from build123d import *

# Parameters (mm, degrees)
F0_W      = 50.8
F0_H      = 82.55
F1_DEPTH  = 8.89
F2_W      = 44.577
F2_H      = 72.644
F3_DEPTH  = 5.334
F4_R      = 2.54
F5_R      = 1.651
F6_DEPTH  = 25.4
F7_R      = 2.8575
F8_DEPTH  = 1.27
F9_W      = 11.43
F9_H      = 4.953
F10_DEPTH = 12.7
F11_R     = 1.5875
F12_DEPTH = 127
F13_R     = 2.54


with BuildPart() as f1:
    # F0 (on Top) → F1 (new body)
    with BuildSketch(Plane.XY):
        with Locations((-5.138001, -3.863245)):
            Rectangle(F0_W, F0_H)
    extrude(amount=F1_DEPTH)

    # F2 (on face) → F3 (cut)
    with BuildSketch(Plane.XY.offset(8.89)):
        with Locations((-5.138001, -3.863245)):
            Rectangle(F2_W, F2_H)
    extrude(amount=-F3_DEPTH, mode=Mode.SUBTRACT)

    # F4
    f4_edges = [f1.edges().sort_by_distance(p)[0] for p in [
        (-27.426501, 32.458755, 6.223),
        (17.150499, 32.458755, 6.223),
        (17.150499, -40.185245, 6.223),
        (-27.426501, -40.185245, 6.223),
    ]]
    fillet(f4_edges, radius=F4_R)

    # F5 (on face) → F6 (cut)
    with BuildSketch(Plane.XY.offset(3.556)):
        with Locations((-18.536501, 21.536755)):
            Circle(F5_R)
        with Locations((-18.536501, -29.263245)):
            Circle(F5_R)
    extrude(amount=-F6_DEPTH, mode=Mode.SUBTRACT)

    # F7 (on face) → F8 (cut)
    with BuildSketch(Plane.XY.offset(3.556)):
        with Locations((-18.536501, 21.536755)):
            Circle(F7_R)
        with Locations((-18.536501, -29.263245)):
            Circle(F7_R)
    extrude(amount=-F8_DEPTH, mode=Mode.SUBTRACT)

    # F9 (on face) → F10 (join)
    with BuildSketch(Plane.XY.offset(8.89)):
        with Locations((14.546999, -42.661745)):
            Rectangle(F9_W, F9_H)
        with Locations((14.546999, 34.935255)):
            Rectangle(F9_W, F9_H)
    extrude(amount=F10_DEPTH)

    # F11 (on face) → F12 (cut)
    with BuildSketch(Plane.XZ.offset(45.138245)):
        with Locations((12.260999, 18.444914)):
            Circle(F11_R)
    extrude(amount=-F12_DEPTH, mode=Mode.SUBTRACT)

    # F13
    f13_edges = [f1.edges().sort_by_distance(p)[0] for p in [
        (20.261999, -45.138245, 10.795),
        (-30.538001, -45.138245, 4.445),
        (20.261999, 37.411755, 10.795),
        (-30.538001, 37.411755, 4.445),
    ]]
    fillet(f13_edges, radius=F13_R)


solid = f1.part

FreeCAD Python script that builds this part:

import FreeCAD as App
import Part
import Sketcher
Q = App.Units.Quantity


def edges_at(feature, points):
    """Names of the edges that pass closest to the given points."""
    edges = feature.Shape.Edges
    near = lambda p: min(range(len(edges)), key=lambda i: edges[i].distToShape(Part.Vertex(*p))[0])
    return sorted({f"Edge{near(p) + 1}" for p in points})

doc = App.newDocument("Part")
body = doc.addObject("PartDesign::Body", "Body")

# Sketch on XY plane
sketch1 = body.newObject("Sketcher::SketchObject", "Sketch")
sketch1.AttachmentSupport = (doc.getObject("XY_Plane"), [""])
sketch1.MapMode = "FlatFace"
sketch1.addGeometry(Part.LineSegment(App.Vector(-31, 37, 0), App.Vector(-31, -45, 0)), False)
sketch1.addGeometry(Part.LineSegment(App.Vector(-31, -45, 0), App.Vector(20, -45, 0)), False)
sketch1.addGeometry(Part.LineSegment(App.Vector(20, -45, 0), App.Vector(20, 37, 0)), False)
sketch1.addGeometry(Part.LineSegment(App.Vector(20, 37, 0), App.Vector(-31, 37, 0)), False)
sketch1.addConstraint(Sketcher.Constraint("Coincident", 0, 2, 1, 1))
sketch1.addConstraint(Sketcher.Constraint("Coincident", 1, 2, 2, 1))
sketch1.addConstraint(Sketcher.Constraint("Coincident", 2, 2, 3, 1))
sketch1.addConstraint(Sketcher.Constraint("Coincident", 3, 2, 0, 1))
sketch1.addConstraint(Sketcher.Constraint("Vertical", 0))
sketch1.addConstraint(Sketcher.Constraint("Horizontal", 1))
sketch1.addConstraint(Sketcher.Constraint("Vertical", 2))
sketch1.addConstraint(Sketcher.Constraint("Horizontal", 3))
sketch1.addConstraint(Sketcher.Constraint("DistanceX", 1, 1, 1, 2, Q("2 in")))
sketch1.addConstraint(Sketcher.Constraint("DistanceY", 0, 2, 0, 1, Q("3.25 in")))
sketch1.addConstraint(Sketcher.Constraint("DistanceX", 0, 2, -1, 1, 30.538001))
sketch1.addConstraint(Sketcher.Constraint("DistanceY", 0, 2, -1, 1, 45.138245))
pad1 = body.newObject("PartDesign::Pad", "Pad")
pad1.Profile = sketch1
pad1.Length = Q("0.35 in")

# Sketch on XY plane
sketch2 = body.newObject("Sketcher::SketchObject", "Sketch001")
sketch2.AttachmentSupport = (doc.getObject("XY_Plane"), [""])
sketch2.MapMode = "FlatFace"
sketch2.AttachmentOffset = App.Placement(App.Vector(0, 0, 0.35 * 25.4), App.Rotation())
sketch2.addGeometry(Part.LineSegment(App.Vector(-27, 32, 0), App.Vector(-27, -40, 0)), False)
sketch2.addGeometry(Part.LineSegment(App.Vector(-27, -40, 0), App.Vector(17, -40, 0)), False)
sketch2.addGeometry(Part.LineSegment(App.Vector(17, -40, 0), App.Vector(17, 32, 0)), False)
sketch2.addGeometry(Part.LineSegment(App.Vector(17, 32, 0), App.Vector(-27, 32, 0)), False)
sketch2.addConstraint(Sketcher.Constraint("Coincident", 0, 2, 1, 1))
sketch2.addConstraint(Sketcher.Constraint("Coincident", 1, 2, 2, 1))
sketch2.addConstraint(Sketcher.Constraint("Coincident", 2, 2, 3, 1))
sketch2.addConstraint(Sketcher.Constraint("Coincident", 3, 2, 0, 1))
sketch2.addConstraint(Sketcher.Constraint("Vertical", 0))
sketch2.addConstraint(Sketcher.Constraint("Horizontal", 1))
sketch2.addConstraint(Sketcher.Constraint("Vertical", 2))
sketch2.addConstraint(Sketcher.Constraint("Horizontal", 3))
sketch2.addConstraint(Sketcher.Constraint("DistanceY", 0, 2, 0, 1, Q("2.86 in")))
sketch2.addConstraint(Sketcher.Constraint("DistanceX", 1, 1, 1, 2, Q("1.755 in")))
sketch2.addConstraint(Sketcher.Constraint("DistanceX", 0, 2, -1, 1, 27.426501))
sketch2.addConstraint(Sketcher.Constraint("DistanceY", 0, 2, -1, 1, 40.185245))
pocket1 = body.newObject("PartDesign::Pocket", "Pocket")
pocket1.Profile = sketch2
pocket1.Length = Q("0.21 in")
doc.recompute()

fillet = body.newObject("PartDesign::Fillet", "Fillet")
fillet.Base = (pocket1, edges_at(pocket1, [
    (-27.427, 32.459, 6.223),
    (17.15, 32.459, 6.223),
    (17.15, -40.185, 6.223),
    (-27.427, -40.185, 6.223),
]))
fillet.Radius = Q("0.1 in")

# Sketch on XY plane
sketch3 = body.newObject("Sketcher::SketchObject", "Sketch002")
sketch3.AttachmentSupport = (doc.getObject("XY_Plane"), [""])
sketch3.MapMode = "FlatFace"
sketch3.AttachmentOffset = App.Placement(App.Vector(0, 0, 0.14 * 25.4), App.Rotation())
sketch3.addGeometry(Part.Circle(App.Vector(-18.5, 21.5, 0), App.Vector(0, 0, 1), 1.7), False)
sketch3.addGeometry(Part.Circle(App.Vector(-18.5, -29.3, 0), App.Vector(0, 0, 1), 1.7), False)
sketch3.addConstraint(Sketcher.Constraint("Equal", 0, 1))
sketch3.addConstraint(Sketcher.Constraint("Vertical", 0, 3, 1, 3))
sketch3.addConstraint(Sketcher.Constraint("Diameter", 0, Q("0.13 in")))
sketch3.addConstraint(Sketcher.Constraint("DistanceY", 1, 3, 0, 3, Q("2 in")))
sketch3.addConstraint(Sketcher.Constraint("DistanceX", 0, 3, -1, 1, 18.536501))
sketch3.addConstraint(Sketcher.Constraint("DistanceY", -1, 1, 0, 3, 21.536755))
pocket2 = body.newObject("PartDesign::Pocket", "Pocket001")
pocket2.Profile = sketch3
pocket2.Length = Q("1 in")

# Sketch on XY plane
sketch4 = body.newObject("Sketcher::SketchObject", "Sketch003")
sketch4.AttachmentSupport = (doc.getObject("XY_Plane"), [""])
sketch4.MapMode = "FlatFace"
sketch4.AttachmentOffset = App.Placement(App.Vector(0, 0, 0.14 * 25.4), App.Rotation())
sketch4.addGeometry(Part.Circle(App.Vector(-18.5, 21.5, 0), App.Vector(0, 0, 1), 2.9), False)
sketch4.addGeometry(Part.Circle(App.Vector(-18.5, -29.3, 0), App.Vector(0, 0, 1), 2.9), False)
sketch4.addConstraint(Sketcher.Constraint("Equal", 0, 1))
sketch4.addConstraint(Sketcher.Constraint("Vertical", 0, 3, 1, 3))
sketch4.addConstraint(Sketcher.Constraint("Diameter", 0, Q("0.225 in")))
sketch4.addConstraint(Sketcher.Constraint("DistanceY", 1, 3, 0, 3, Q("2 in")))
sketch4.addConstraint(Sketcher.Constraint("DistanceX", 0, 3, -1, 1, 18.536501))
sketch4.addConstraint(Sketcher.Constraint("DistanceY", -1, 1, 0, 3, 21.536755))
pocket3 = body.newObject("PartDesign::Pocket", "Pocket002")
pocket3.Profile = sketch4
pocket3.Length = Q("0.05 in")

# Sketch on XY plane
sketch5 = body.newObject("Sketcher::SketchObject", "Sketch004")
sketch5.AttachmentSupport = (doc.getObject("XY_Plane"), [""])
sketch5.MapMode = "FlatFace"
sketch5.AttachmentOffset = App.Placement(App.Vector(0, 0, 0.35 * 25.4), App.Rotation())
sketch5.addGeometry(Part.LineSegment(App.Vector(8.8, -40.2, 0), App.Vector(8.8, -45.1, 0)), False)
sketch5.addGeometry(Part.LineSegment(App.Vector(8.8, -45.1, 0), App.Vector(20.3, -45.1, 0)), False)
sketch5.addGeometry(Part.LineSegment(App.Vector(20.3, -45.1, 0), App.Vector(20.3, -40.2, 0)), False)
sketch5.addGeometry(Part.LineSegment(App.Vector(20.3, -40.2, 0), App.Vector(8.8, -40.2, 0)), False)
sketch5.addGeometry(Part.LineSegment(App.Vector(8.8, 37.4, 0), App.Vector(8.8, 32.5, 0)), False)
sketch5.addGeometry(Part.LineSegment(App.Vector(8.8, 32.5, 0), App.Vector(20.3, 32.5, 0)), False)
sketch5.addGeometry(Part.LineSegment(App.Vector(20.3, 32.5, 0), App.Vector(20.3, 37.4, 0)), False)
sketch5.addGeometry(Part.LineSegment(App.Vector(20.3, 37.4, 0), App.Vector(8.8, 37.4, 0)), False)
sketch5.addConstraint(Sketcher.Constraint("Coincident", 0, 2, 1, 1))
sketch5.addConstraint(Sketcher.Constraint("Coincident", 1, 2, 2, 1))
sketch5.addConstraint(Sketcher.Constraint("Coincident", 2, 2, 3, 1))
sketch5.addConstraint(Sketcher.Constraint("Coincident", 3, 2, 0, 1))
sketch5.addConstraint(Sketcher.Constraint("Coincident", 4, 2, 5, 1))
sketch5.addConstraint(Sketcher.Constraint("Coincident", 5, 2, 6, 1))
sketch5.addConstraint(Sketcher.Constraint("Coincident", 6, 2, 7, 1))
sketch5.addConstraint(Sketcher.Constraint("Coincident", 7, 2, 4, 1))
sketch5.addConstraint(Sketcher.Constraint("Vertical", 0))
sketch5.addConstraint(Sketcher.Constraint("Horizontal", 1))
sketch5.addConstraint(Sketcher.Constraint("Vertical", 2))
sketch5.addConstraint(Sketcher.Constraint("Horizontal", 3))
sketch5.addConstraint(Sketcher.Constraint("Vertical", 4))
sketch5.addConstraint(Sketcher.Constraint("Horizontal", 5))
sketch5.addConstraint(Sketcher.Constraint("Vertical", 6))
sketch5.addConstraint(Sketcher.Constraint("Horizontal", 7))
sketch5.addConstraint(Sketcher.Constraint("Vertical", 3, 2, 4, 2))
sketch5.addConstraint(Sketcher.Constraint("Vertical", 2, 2, 5, 2))
sketch5.addConstraint(Sketcher.Constraint("Equal", 2, 4))
sketch5.addConstraint(Sketcher.Constraint("DistanceX", 1, 1, 1, 2, Q("0.45 in")))
sketch5.addConstraint(Sketcher.Constraint("DistanceY", 0, 2, 0, 1, Q("0.195 in")))
sketch5.addConstraint(Sketcher.Constraint("DistanceY", 3, 2, 4, 2, Q("2.86 in")))
sketch5.addConstraint(Sketcher.Constraint("DistanceX", -1, 1, 0, 2, 8.831999))
sketch5.addConstraint(Sketcher.Constraint("DistanceY", 0, 2, -1, 1, 45.138245))
pad2 = body.newObject("PartDesign::Pad", "Pad001")
pad2.Profile = sketch5
pad2.Length = Q("0.5 in")

# Sketch on XZ plane
sketch6 = body.newObject("Sketcher::SketchObject", "Sketch005")
sketch6.AttachmentSupport = (doc.getObject("XZ_Plane"), [""])
sketch6.MapMode = "FlatFace"
sketch6.AttachmentOffset = App.Placement(App.Vector(0, 0, 45.138245), App.Rotation())
sketch6.addGeometry(Part.Circle(App.Vector(12.3, 18.4, 0), App.Vector(0, 0, 1), 1.6), False)
sketch6.addConstraint(Sketcher.Constraint("Diameter", 0, Q("0.125 in")))
sketch6.addConstraint(Sketcher.Constraint("DistanceX", -1, 1, 0, 3, 12.260999))
sketch6.addConstraint(Sketcher.Constraint("DistanceY", -1, 1, 0, 3, 18.444914))
pocket4 = body.newObject("PartDesign::Pocket", "Pocket003")
pocket4.Profile = sketch6
pocket4.Length = Q("5 in")
doc.recompute()

fillet2 = body.newObject("PartDesign::Fillet", "Fillet001")
fillet2.Base = (pocket4, edges_at(pocket4, [
    (20.262, -45.138, 10.795),
    (-30.538, -45.138, 4.445),
    (20.262, 37.412, 10.795),
    (-30.538, 37.412, 4.445),
]))
fillet2.Radius = Q("0.1 in")

doc.recompute()
